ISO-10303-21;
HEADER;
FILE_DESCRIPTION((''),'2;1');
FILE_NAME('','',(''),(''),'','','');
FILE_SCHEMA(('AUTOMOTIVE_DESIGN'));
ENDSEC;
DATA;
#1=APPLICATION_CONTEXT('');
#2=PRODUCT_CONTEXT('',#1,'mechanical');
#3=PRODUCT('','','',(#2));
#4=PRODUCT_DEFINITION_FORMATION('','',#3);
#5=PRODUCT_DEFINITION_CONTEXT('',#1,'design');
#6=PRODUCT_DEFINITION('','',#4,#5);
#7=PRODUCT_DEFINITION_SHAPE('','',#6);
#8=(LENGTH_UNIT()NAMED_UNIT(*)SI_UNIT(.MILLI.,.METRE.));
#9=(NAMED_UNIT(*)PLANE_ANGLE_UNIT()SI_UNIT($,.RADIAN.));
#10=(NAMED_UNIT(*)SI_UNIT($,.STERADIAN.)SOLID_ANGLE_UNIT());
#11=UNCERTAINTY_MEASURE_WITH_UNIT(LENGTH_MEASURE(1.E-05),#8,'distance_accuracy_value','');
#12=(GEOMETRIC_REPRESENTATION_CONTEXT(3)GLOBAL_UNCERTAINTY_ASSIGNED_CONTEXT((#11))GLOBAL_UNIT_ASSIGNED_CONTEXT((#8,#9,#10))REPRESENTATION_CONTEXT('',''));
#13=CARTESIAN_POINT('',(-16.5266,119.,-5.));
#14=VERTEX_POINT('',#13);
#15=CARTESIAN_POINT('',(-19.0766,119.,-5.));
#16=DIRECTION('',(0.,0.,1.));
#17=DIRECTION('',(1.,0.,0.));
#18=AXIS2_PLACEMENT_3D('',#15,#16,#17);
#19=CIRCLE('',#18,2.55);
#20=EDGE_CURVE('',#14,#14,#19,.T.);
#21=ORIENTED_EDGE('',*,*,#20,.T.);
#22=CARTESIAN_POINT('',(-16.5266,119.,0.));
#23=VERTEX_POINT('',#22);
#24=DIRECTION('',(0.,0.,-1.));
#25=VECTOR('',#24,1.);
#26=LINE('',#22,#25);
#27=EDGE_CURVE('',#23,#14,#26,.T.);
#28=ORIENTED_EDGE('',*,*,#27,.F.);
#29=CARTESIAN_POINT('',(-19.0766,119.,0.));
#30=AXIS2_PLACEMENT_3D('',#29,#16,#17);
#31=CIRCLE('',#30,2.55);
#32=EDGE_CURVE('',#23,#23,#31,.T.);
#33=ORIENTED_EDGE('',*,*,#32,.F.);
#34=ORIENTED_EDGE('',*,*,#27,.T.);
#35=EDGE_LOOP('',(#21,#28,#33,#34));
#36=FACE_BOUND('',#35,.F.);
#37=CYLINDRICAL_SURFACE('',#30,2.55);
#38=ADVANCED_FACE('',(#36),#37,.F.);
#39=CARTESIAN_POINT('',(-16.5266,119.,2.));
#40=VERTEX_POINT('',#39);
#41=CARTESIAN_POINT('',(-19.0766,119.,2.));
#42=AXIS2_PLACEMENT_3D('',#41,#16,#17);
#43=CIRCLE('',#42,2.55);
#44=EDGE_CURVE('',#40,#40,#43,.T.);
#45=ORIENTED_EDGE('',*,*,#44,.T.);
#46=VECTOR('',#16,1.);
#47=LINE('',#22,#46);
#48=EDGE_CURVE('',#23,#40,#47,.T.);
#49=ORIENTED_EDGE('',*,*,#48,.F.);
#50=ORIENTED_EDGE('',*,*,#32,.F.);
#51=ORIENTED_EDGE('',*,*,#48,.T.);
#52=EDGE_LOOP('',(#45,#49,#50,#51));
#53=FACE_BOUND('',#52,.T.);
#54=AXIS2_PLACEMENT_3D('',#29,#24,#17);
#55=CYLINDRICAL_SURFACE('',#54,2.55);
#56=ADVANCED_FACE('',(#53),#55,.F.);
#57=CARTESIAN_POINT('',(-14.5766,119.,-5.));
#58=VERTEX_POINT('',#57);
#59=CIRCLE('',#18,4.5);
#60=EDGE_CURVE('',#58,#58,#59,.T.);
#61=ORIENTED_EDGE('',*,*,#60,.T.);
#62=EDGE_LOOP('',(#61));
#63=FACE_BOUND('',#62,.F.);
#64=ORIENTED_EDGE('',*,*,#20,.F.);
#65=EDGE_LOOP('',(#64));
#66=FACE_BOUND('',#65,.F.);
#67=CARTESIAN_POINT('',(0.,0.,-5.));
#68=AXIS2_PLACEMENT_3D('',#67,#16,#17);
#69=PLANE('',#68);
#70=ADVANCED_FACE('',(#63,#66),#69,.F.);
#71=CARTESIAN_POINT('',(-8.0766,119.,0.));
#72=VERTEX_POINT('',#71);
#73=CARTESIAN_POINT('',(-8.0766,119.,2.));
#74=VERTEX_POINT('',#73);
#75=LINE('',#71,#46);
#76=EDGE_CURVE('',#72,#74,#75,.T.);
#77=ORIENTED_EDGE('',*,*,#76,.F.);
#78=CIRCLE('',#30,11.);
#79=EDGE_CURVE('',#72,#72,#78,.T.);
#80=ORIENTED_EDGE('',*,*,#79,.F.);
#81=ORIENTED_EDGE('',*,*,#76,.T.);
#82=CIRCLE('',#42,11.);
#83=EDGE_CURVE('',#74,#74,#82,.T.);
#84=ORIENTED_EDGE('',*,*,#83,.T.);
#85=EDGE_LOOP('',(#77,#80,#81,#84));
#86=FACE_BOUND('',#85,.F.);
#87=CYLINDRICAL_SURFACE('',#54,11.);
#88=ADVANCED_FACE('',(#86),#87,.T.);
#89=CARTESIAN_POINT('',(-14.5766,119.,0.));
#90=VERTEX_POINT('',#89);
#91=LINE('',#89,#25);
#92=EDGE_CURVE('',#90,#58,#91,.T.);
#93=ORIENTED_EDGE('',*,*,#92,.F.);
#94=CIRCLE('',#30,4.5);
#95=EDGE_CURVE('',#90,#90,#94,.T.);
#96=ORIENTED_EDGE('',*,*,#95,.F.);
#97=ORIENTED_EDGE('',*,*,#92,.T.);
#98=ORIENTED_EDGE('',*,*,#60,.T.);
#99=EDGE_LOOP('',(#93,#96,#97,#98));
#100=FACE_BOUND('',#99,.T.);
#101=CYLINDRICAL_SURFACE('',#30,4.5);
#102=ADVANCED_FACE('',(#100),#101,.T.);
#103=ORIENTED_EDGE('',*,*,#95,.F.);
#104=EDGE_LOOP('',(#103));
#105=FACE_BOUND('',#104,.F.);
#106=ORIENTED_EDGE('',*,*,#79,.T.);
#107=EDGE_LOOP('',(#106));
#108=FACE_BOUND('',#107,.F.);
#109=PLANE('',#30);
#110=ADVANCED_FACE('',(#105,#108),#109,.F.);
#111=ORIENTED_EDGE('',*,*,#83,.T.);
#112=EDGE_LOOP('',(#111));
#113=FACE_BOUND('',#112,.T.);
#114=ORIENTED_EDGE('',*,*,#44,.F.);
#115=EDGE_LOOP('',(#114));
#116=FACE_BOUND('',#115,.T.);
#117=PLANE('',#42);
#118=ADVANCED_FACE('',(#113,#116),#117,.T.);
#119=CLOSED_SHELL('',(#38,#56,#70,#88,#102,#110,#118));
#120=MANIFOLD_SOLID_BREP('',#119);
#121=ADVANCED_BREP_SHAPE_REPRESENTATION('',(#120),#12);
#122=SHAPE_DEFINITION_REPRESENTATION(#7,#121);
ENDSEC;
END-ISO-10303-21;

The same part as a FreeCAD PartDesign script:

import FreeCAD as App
import Part
import Sketcher
Q = App.Units.Quantity

doc = App.newDocument("Part")
body = doc.addObject("PartDesign::Body", "Body")

# Sketch on XY plane
sketch1 = body.newObject("Sketcher::SketchObject", "Sketch")
sketch1.AttachmentSupport = (doc.getObject("XY_Plane"), [""])
sketch1.MapMode = "FlatFace"
sketch1.addGeometry([
    Part.Circle(App.Vector(-19.1, 119, 0), App.Vector(0, 0, 1), 4.5),
    Part.Circle(App.Vector(-19.1, 119, 0), App.Vector(0, 0, 1), 2.5),
], False)
sketch1.addConstraint([
    Sketcher.Constraint("Coincident", 1, 3, 0, 3),
    Sketcher.Constraint("Diameter", 0, Q("9 mm")),
    Sketcher.Constraint("Diameter", 1, Q("5.1 mm")),
    Sketcher.Constraint("DistanceY", -1, 1, 0, 3, Q("119 mm")),
    Sketcher.Constraint("DistanceX", 0, 3, -1, 1, Q("19.0766 mm")),
])
pad1 = body.newObject("PartDesign::Pad", "Pad")
pad1.Profile = sketch1
pad1.Length = 5
pad1.Reversed = True

# Sketch on XY plane
sketch2 = body.newObject("Sketcher::SketchObject", "Sketch001")
sketch2.AttachmentSupport = (doc.getObject("XY_Plane"), [""])
sketch2.MapMode = "FlatFace"
sketch2.addGeometry([
    Part.Circle(App.Vector(-19.1, 119, 0), App.Vector(0, 0, 1), 11),
    Part.Circle(App.Vector(-19.1, 119, 0), App.Vector(0, 0, 1), 2.5),
], False)
sketch2.addConstraint([
    Sketcher.Constraint("Coincident", 1, 3, 0, 3),
    Sketcher.Constraint("Diameter", 0, Q("22 mm")),
    Sketcher.Constraint("Diameter", 1, Q("5.1 mm")),
    Sketcher.Constraint("DistanceY", -1, 1, 0, 3, Q("119 mm")),
    Sketcher.Constraint("DistanceX", 0, 3, -1, 1, Q("19.0766 mm")),
])
pad2 = body.newObject("PartDesign::Pad", "Pad001")
pad2.Profile = sketch2
pad2.Length = 2

doc.recompute()
